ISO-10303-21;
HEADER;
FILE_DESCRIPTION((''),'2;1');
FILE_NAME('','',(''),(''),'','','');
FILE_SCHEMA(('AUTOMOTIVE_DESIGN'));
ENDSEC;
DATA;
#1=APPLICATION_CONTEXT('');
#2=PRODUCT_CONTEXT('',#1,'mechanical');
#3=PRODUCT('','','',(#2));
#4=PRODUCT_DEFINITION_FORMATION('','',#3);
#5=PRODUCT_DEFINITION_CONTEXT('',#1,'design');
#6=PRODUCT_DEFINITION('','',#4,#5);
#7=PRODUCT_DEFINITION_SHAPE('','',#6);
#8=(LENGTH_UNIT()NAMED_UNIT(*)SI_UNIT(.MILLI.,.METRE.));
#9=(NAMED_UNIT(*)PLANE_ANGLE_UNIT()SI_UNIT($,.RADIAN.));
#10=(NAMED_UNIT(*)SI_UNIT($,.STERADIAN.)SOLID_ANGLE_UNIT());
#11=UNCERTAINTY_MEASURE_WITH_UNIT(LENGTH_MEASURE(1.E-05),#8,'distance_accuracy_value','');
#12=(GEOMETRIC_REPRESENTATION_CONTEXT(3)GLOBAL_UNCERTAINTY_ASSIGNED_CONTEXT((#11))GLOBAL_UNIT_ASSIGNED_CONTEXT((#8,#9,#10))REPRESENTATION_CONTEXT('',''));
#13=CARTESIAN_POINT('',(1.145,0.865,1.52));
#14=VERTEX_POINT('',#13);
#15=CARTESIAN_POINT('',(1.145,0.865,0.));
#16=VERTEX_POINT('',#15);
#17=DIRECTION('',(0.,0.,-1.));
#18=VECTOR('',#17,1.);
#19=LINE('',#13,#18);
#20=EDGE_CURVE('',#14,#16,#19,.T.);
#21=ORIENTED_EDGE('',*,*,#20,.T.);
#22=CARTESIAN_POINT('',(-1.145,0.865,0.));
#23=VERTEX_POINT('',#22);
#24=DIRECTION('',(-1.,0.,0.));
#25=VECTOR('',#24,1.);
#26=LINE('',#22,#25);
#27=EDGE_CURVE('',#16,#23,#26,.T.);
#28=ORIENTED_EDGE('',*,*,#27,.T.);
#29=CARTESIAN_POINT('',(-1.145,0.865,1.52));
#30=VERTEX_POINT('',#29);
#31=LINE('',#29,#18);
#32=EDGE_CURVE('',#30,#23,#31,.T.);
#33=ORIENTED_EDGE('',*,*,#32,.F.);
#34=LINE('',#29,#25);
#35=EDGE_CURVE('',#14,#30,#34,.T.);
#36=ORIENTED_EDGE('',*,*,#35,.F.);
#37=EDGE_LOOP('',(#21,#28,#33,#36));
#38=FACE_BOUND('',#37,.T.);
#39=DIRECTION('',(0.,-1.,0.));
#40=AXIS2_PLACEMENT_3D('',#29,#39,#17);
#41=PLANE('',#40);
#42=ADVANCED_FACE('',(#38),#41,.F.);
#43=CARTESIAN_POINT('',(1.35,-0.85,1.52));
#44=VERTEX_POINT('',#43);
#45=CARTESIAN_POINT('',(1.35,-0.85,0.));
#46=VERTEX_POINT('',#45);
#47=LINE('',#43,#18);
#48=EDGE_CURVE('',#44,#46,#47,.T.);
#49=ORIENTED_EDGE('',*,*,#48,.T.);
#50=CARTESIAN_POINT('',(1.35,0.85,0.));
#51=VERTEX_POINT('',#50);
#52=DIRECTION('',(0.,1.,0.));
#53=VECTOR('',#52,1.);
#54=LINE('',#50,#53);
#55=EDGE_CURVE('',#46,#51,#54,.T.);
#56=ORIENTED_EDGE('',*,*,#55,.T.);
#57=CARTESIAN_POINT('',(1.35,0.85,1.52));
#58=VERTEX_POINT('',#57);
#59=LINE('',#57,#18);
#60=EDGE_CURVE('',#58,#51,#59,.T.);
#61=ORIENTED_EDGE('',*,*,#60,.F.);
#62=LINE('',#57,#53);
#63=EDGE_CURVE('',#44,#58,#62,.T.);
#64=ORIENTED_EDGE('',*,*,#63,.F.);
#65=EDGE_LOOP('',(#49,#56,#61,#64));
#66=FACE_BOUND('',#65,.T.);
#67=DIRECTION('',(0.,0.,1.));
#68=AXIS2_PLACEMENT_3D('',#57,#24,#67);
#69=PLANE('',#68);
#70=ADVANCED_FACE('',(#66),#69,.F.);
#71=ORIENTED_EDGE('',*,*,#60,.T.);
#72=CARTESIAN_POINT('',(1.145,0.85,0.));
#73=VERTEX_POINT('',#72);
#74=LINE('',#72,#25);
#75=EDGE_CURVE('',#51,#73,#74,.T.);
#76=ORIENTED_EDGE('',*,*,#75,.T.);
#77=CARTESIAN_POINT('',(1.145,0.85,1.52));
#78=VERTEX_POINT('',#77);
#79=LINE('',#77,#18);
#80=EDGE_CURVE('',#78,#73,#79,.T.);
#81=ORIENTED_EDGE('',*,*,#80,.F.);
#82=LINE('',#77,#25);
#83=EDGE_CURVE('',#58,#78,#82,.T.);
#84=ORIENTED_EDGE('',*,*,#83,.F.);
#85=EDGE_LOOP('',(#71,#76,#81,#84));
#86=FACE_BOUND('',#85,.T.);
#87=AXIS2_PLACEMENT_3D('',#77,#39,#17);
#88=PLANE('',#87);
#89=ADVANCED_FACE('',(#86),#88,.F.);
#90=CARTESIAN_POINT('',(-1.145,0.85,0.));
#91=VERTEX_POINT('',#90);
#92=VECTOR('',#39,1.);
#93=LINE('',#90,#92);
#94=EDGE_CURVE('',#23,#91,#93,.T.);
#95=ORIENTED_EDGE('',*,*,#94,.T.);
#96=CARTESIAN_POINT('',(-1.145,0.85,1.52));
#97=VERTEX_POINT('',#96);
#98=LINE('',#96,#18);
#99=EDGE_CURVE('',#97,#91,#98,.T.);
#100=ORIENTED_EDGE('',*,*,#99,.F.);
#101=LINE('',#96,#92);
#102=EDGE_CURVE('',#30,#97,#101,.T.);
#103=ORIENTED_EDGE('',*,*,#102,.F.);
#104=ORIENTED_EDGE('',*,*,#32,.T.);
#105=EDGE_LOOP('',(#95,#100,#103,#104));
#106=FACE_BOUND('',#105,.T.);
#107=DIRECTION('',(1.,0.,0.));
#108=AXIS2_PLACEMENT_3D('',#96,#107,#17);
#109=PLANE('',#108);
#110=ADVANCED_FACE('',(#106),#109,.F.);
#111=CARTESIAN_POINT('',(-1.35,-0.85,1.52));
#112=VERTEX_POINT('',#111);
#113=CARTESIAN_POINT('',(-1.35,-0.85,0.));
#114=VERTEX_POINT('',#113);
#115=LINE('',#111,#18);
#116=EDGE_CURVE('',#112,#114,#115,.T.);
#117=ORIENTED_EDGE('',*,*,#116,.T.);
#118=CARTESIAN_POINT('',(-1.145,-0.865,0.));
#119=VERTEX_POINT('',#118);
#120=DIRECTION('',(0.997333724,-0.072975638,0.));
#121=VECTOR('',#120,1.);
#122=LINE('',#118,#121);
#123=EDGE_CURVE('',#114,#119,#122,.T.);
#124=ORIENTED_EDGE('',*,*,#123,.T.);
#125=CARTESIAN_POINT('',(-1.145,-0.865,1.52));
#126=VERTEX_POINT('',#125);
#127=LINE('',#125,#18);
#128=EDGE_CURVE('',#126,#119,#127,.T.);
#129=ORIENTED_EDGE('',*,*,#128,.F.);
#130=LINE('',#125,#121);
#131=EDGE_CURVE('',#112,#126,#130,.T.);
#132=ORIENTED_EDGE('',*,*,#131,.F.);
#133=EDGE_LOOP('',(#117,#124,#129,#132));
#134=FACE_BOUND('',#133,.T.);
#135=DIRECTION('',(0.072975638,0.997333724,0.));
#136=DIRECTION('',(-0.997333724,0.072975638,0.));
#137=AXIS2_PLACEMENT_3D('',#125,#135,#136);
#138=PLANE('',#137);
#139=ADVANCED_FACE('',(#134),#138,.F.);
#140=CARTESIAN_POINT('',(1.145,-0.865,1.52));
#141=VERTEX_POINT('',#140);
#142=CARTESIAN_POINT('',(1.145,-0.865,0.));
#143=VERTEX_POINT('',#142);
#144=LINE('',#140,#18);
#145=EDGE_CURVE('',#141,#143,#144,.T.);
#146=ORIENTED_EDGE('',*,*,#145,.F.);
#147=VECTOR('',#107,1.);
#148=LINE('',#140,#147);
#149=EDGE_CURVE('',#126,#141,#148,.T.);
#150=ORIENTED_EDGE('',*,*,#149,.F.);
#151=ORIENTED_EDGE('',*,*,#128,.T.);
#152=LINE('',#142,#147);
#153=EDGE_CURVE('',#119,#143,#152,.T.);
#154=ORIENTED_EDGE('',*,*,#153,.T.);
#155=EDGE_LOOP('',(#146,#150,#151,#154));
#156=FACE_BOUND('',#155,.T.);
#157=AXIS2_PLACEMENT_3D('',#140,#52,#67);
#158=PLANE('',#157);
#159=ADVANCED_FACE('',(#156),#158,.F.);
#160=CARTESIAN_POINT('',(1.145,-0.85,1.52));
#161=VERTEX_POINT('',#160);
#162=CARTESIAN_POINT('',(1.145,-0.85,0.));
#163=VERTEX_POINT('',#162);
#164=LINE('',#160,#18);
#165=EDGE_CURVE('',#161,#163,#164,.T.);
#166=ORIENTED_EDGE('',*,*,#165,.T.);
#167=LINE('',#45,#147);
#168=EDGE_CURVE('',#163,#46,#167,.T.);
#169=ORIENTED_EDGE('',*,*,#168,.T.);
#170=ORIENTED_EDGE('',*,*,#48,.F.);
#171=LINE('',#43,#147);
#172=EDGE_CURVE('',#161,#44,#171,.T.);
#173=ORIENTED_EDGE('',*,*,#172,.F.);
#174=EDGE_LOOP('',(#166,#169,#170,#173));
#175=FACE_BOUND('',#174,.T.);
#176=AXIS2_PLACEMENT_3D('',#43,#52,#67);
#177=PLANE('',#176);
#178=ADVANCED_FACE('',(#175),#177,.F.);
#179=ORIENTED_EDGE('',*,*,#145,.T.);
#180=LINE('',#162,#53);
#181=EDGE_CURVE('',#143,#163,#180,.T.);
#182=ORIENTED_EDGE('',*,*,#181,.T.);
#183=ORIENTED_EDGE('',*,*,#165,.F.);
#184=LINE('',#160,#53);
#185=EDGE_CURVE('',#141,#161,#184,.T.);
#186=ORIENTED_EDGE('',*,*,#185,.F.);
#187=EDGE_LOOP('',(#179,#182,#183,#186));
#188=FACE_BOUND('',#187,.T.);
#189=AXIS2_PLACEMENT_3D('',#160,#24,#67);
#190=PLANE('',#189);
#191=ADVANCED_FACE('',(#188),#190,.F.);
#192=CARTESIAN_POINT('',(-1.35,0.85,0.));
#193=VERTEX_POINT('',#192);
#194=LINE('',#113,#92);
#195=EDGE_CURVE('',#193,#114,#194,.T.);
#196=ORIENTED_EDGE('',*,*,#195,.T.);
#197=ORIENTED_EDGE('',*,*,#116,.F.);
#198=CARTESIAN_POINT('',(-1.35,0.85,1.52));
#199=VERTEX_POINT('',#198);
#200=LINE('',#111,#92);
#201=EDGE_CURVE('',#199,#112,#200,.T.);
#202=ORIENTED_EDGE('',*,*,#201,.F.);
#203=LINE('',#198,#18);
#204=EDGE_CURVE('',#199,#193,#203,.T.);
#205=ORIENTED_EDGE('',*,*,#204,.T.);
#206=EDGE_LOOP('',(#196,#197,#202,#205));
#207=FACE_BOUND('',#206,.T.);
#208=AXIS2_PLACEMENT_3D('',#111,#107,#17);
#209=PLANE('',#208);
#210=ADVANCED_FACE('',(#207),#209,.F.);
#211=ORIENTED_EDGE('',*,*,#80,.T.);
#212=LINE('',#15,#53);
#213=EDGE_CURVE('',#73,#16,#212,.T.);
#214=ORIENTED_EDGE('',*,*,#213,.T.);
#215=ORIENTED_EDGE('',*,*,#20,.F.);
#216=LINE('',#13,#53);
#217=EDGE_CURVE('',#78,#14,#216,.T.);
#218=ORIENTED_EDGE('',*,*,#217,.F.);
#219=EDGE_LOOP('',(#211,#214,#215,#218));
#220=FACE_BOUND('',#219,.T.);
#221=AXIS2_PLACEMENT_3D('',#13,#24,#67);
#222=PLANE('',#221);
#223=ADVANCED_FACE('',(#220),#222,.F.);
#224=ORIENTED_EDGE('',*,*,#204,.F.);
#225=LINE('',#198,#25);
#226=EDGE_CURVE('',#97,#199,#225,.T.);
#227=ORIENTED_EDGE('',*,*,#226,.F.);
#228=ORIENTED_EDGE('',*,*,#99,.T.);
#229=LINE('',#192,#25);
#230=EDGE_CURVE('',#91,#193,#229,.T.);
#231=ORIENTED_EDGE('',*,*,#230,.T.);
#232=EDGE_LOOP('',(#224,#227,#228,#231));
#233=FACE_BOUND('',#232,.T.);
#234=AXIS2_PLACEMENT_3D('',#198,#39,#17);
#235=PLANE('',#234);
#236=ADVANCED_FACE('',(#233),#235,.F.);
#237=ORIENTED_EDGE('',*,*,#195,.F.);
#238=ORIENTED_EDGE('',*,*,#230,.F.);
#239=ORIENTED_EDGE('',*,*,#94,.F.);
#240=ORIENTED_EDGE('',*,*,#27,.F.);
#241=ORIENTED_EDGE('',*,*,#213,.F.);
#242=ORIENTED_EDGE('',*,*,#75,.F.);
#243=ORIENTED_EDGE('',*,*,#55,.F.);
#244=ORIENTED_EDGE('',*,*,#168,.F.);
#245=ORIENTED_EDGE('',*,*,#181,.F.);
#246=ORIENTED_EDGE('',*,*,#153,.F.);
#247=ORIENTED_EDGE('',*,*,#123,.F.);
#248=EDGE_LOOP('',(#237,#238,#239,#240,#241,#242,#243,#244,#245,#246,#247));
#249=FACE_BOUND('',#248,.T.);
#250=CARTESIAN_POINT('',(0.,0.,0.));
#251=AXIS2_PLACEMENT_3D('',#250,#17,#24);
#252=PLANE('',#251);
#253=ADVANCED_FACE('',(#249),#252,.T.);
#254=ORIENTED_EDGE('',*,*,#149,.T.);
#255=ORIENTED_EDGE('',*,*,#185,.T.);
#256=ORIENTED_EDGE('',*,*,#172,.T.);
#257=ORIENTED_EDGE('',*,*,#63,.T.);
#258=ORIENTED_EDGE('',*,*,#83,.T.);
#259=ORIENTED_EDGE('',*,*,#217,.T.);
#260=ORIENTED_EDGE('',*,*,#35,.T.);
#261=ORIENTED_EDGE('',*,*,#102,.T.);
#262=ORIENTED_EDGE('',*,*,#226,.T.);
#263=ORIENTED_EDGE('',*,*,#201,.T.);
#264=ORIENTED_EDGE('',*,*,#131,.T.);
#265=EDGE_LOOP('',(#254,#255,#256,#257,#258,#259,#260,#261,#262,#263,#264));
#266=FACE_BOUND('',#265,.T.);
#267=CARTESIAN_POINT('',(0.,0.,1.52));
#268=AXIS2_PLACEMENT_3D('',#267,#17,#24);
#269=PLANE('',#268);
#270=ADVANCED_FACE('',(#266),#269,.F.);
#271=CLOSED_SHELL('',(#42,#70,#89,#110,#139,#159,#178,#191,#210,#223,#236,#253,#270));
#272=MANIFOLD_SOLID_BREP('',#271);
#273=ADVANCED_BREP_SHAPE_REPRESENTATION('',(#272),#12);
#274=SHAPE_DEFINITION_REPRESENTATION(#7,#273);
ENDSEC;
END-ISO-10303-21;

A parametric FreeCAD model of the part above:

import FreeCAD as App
import Part
import Sketcher
from FreeCAD import Vector
Q = App.Units.Quantity


def add_polygon(sketch, points):
    """Adds a closed chain of lines whose ends are joined by coincident constraints."""
    first, n = sketch.GeometryCount, len(points)
    for a, b in zip(points, points[1:] + points[:1]):
        sketch.addGeometry(Part.LineSegment(App.Vector(*a, 0), App.Vector(*b, 0)), False)
    for i in range(n):
        sketch.addConstraint(Sketcher.Constraint("Coincident", first + i, 2, first + (i + 1) % n, 1))

doc = App.newDocument("Part")
params = doc.addObject("Spreadsheet::Sheet", "Params")
for row, (alias, value) in enumerate([
    ("sketch1_height", "1.7 mm"),
    ("sketch1_width", "2.29 mm"),
    ("pad1_length", "1.52 mm"),
], start=1):
    params.set(f"A{row}", alias)
    params.set(f"B{row}", "=" + value)
    params.setAlias(f"B{row}", alias)

body = doc.addObject("PartDesign::Body", "Body")

# Sketch on XY plane
sketch1 = body.newObject("Sketcher::SketchObject", "Sketch")
sketch1.AttachmentSupport = (doc.getObject("XY_Plane"), [""])
sketch1.MapMode = "FlatFace"
add_polygon(sketch1, [(-1.145, 0.85), (-1.35, 0.85), (-1.35, -0.85), (-1.145, -0.865), (1.145, -0.865), (1.145, -0.85), (1.35, -0.85), (1.35, 0.85), (1.145, 0.85), (1.145, 0.865), (-1.145, 0.865)])  # lines 0-10
sketch1.addConstraint([
    Sketcher.Constraint("Horizontal", 0),
    Sketcher.Constraint("Vertical", 1),
    Sketcher.Constraint("Horizontal", 3),
    Sketcher.Constraint("Vertical", 4),
    Sketcher.Constraint("Horizontal", 5),
    Sketcher.Constraint("Vertical", 6),
    Sketcher.Constraint("Horizontal", 7),
    Sketcher.Constraint("Vertical", 8),
    Sketcher.Constraint("Horizontal", 9),
    Sketcher.Constraint("Vertical", 10),
    Sketcher.Constraint("Symmetric", 0, 2, 5, 2, -1, 1),
    Sketcher.Constraint("Symmetric", 2, 2, 8, 2, -1, 1),
    Sketcher.Constraint("Symmetric", 7, 2, 10, 2, -2),
    Sketcher.Constraint("Horizontal", 1, 2, 4, 2),
    Sketcher.Constraint("Vertical", 4, 2, 7, 2),
    Sketcher.Constraint("DistanceY", 1, 2, 1, 1, Q("1.7 mm")),
    Sketcher.Constraint("DistanceX", 3, 1, 3, 2, Q("2.29 mm")),
    Sketcher.Constraint("DistanceX", 1, 2, 5, 2, Q("2.7 mm")),
    Sketcher.Constraint("DistanceY", 4, 1, 4, 2, Q("0.015 mm")),
])
sketch1.setExpression("Constraints[26]", "Params.sketch1_height")
sketch1.setExpression("Constraints[27]", "Params.sketch1_width")
pad1 = body.newObject("PartDesign::Pad", "Pad")
pad1.Profile = sketch1
pad1.setExpression("Length", "Params.pad1_length")

doc.recompute()
